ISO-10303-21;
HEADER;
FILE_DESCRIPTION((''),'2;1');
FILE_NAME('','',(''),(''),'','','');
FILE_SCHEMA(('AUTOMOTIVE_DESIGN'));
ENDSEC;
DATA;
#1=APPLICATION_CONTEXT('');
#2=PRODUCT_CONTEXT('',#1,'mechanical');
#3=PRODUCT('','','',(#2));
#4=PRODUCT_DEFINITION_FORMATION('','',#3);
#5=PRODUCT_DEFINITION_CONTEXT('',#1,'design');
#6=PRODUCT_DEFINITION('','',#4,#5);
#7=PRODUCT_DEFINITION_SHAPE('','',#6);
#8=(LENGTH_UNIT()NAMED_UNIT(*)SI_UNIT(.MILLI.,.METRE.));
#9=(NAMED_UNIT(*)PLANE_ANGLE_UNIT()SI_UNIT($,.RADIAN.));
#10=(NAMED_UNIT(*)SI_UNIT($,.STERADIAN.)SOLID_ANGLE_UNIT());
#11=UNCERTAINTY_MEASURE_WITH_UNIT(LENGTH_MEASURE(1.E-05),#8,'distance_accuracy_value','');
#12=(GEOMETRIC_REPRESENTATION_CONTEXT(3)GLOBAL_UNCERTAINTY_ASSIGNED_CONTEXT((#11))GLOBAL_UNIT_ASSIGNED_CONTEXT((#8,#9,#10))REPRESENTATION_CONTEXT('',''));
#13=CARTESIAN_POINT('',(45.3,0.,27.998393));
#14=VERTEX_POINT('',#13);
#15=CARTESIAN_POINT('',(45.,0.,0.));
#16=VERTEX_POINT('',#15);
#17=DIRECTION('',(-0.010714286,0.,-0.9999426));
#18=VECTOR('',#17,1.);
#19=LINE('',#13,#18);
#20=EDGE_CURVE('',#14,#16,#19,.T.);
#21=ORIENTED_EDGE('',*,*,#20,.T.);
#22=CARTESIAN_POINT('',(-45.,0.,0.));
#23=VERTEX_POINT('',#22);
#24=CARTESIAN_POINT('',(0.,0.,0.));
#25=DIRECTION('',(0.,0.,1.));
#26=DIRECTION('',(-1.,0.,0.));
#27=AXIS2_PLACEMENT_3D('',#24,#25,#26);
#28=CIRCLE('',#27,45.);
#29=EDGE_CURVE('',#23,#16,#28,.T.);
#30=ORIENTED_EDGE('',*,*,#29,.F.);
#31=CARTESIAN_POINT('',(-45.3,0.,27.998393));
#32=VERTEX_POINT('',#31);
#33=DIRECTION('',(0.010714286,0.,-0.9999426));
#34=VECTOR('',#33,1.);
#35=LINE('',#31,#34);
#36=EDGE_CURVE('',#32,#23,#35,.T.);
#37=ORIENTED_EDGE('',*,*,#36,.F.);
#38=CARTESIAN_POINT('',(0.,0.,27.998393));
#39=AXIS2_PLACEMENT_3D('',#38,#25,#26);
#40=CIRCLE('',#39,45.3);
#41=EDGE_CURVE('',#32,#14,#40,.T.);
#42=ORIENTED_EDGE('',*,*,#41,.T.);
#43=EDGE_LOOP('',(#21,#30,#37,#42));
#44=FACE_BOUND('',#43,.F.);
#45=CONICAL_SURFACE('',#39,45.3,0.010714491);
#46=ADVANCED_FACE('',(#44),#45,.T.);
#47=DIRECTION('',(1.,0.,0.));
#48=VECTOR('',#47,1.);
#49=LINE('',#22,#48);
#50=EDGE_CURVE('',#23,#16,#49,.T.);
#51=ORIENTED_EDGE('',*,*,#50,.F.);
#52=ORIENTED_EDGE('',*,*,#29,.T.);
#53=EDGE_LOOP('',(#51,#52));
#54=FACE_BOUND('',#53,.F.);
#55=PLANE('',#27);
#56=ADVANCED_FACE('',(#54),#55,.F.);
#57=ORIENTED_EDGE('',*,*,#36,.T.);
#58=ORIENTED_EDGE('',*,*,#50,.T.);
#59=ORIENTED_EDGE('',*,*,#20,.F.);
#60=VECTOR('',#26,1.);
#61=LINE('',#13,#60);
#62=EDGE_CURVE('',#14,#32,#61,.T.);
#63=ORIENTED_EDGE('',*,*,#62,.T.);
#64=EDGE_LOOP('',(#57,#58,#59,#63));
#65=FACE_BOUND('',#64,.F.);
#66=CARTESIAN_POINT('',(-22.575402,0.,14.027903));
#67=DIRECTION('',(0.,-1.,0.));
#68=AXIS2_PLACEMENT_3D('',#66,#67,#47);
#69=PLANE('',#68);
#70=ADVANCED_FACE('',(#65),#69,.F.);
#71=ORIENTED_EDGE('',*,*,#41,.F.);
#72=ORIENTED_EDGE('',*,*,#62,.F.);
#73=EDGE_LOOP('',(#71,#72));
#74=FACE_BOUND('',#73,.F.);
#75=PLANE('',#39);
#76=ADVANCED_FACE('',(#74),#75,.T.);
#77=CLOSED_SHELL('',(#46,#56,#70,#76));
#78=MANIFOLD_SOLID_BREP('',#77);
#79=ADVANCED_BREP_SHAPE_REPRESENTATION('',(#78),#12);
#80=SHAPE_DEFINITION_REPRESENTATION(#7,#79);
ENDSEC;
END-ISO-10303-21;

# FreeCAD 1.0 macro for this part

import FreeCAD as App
import Part
import Sketcher

V = App.Vector
Q = App.Units.Quantity

doc = App.newDocument("Part")
params = doc.addObject("Spreadsheet::Sheet", "Params")
for row, (alias, value) in enumerate([
    ("sketch1_width", "45 mm"),
    ("sketch1_length", "28 mm"),
    ("sketch1_width2", "45.3 mm"),
    ("revolution_angle", "180 deg"),
], start=1):
    params.set(f"A{row}", alias)
    params.set(f"B{row}", "=" + value)
    params.setAlias(f"B{row}", alias)

body = doc.addObject("PartDesign::Body", "Body")

sketch1 = body.newObject("Sketcher::SketchObject", "Sketch")
sketch1.AttachmentSupport = (doc.getObject("XZ_Plane"), [""])
sketch1.MapMode = "FlatFace"
sketch1.addGeometry(Part.LineSegment(V(-45, 28, 0), V(-45, 0, 0)), False)
sketch1.addGeometry(Part.LineSegment(V(-45, 0, 0), V(0, 0, 0)), False)
sketch1.addGeometry(Part.LineSegment(V(0, 0, 0), V(0, 28, 0)), False)
sketch1.addGeometry(Part.LineSegment(V(0, 28, 0), V(-45, 28, 0)), False)
sketch1.addConstraint(Sketcher.Constraint("Coincident", 0, 2, 1, 1))
sketch1.addConstraint(Sketcher.Constraint("Coincident", 1, 2, 2, 1))
sketch1.addConstraint(Sketcher.Constraint("Coincident", 2, 2, 3, 1))
sketch1.addConstraint(Sketcher.Constraint("Coincident", 3, 2, 0, 1))
sketch1.addConstraint(Sketcher.Constraint("Horizontal", 1))
sketch1.addConstraint(Sketcher.Constraint("Vertical", 2))
sketch1.addConstraint(Sketcher.Constraint("Horizontal", 3))
sketch1.addConstraint(Sketcher.Constraint("Coincident", 1, 2, -1, 1))
sketch1.addConstraint(Sketcher.Constraint("DistanceX", 1, 1, 1, 2, Q("45 mm")))
sketch1.addConstraint(Sketcher.Constraint("Distance", 0, Q("28 mm")))
sketch1.addConstraint(Sketcher.Constraint("DistanceX", 3, 2, 3, 1, Q("45.3 mm")))
sketch1.setExpression("Constraints[8]", "Params.sketch1_width")
sketch1.setExpression("Constraints[9]", "Params.sketch1_length")
sketch1.setExpression("Constraints[10]", "Params.sketch1_width2")
revolution = body.newObject("PartDesign::Revolution", "Revolution")
revolution.Profile = sketch1
revolution.ReferenceAxis = (sketch1, ["V_Axis"])
revolution.setExpression("Angle", "Params.revolution_angle")

doc.recompute()
